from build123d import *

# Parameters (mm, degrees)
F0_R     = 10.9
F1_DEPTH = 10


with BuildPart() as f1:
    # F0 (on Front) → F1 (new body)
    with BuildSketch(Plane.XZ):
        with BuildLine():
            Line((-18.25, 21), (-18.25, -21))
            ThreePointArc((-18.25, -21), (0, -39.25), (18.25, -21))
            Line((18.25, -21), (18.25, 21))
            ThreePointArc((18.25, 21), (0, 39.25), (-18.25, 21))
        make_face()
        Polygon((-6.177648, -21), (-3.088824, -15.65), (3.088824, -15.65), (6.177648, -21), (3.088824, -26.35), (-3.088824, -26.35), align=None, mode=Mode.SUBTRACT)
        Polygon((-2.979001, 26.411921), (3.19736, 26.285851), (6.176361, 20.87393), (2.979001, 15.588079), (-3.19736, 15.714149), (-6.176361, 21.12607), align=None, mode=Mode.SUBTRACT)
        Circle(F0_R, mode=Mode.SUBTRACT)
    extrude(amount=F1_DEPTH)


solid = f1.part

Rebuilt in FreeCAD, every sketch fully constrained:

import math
import FreeCAD as App
import Part
import Sketcher
from FreeCAD import Vector
Q = App.Units.Quantity


def add_polygon(sketch, points):
    """Adds a closed chain of lines whose ends are joined by coincident constraints."""
    first, n = sketch.GeometryCount, len(points)
    for a, b in zip(points, points[1:] + points[:1]):
        sketch.addGeometry(Part.LineSegment(App.Vector(*a, 0), App.Vector(*b, 0)), False)
    for i in range(n):
        sketch.addConstraint(Sketcher.Constraint("Coincident", first + i, 2, first + (i + 1) % n, 1))

doc = App.newDocument("Part")
body = doc.addObject("PartDesign::Body", "Body")

sketch1 = doc.addObject("Sketcher::SketchObject", "Sketch")
body.addObject(sketch1)
sketch1.AttachmentSupport = (doc.XZ_Plane, [""])
sketch1.MapMode = "FlatFace"
sketch1.addGeometry(Part.LineSegment(Vector(-18, 21, 0), Vector(-18, -21, 0)), False)
sketch1.addGeometry(Part.ArcOfCircle(Part.Circle(Vector(0, -21, 0), Vector(0, 0, 1), 18), math.radians(180), math.radians(360)), False)
sketch1.addGeometry(Part.LineSegment(Vector(18, -21, 0), Vector(18, 21, 0)), False)
sketch1.addGeometry(Part.ArcOfCircle(Part.Circle(Vector(0, 21, 0), Vector(0, 0, 1), 18), math.radians(0), math.radians(180)), False)
add_polygon(sketch1, [(-3, -26), (-6, -21), (-3, -16), (3, -16), (6, -21), (3, -26)])
sketch1.addGeometry(Part.Circle(Vector(0, 0, 0), Vector(0, 0, 1), 11), False)
add_polygon(sketch1, [(-6, 21), (-3, 26), (3, 26), (6, 21), (3, 16), (-3, 16)])
sketch1.addConstraint([
    Sketcher.Constraint("Tangent", 0, 2, 1, 1),
    Sketcher.Constraint("Tangent", 1, 2, 2, 1),
    Sketcher.Constraint("Tangent", 2, 2, 3, 1),
    Sketcher.Constraint("Tangent", 3, 2, 0, 1),
    Sketcher.Constraint("Vertical", 0),
    Sketcher.Constraint("Vertical", 2),
    Sketcher.Constraint("Horizontal", 6),
    Sketcher.Constraint("Horizontal", 9),
    Sketcher.Constraint("Coincident", 10, 3, -1, 1),
    Sketcher.Constraint("Symmetric", 1, 3, 3, 3, -1, 1),
    Sketcher.Constraint("Symmetric", 4, 2, 7, 2, -2),
    Sketcher.Constraint("Parallel", 4, 7),
    Sketcher.Constraint("Parallel", 5, 8),
    Sketcher.Constraint("Parallel", 11, 14),
    Sketcher.Constraint("Parallel", 12, 15),
    Sketcher.Constraint("Parallel", 13, 16),
    Sketcher.Constraint("Horizontal", 1, 2, 4, 2),
    Sketcher.Constraint("Vertical", 6, 2, 8, 2),
    Sketcher.Constraint("Vertical", 5, 2, 9, 2),
    Sketcher.Constraint("Equal", 8, 11),
    Sketcher.Constraint("Equal", 11, 12),
    Sketcher.Constraint("Equal", 12, 13),
    Sketcher.Constraint("Equal", 13, 14),
    Sketcher.Constraint("Diameter", 10, 21.8),
    Sketcher.Constraint("DistanceY", 0, 2, 0, 1, 42.0),
    Sketcher.Constraint("Angle", 4, Q("120 deg")),
    Sketcher.Constraint("Radius", 1, 18.25),
    Sketcher.Constraint("DistanceY", 8, 2, 6, 2, 10.7),
    Sketcher.Constraint("DistanceX", 11, 2, -1, 1, 2.979001),
    Sketcher.Constraint("DistanceX", -1, 1, 14, 2, 2.979001),
    Sketcher.Constraint("DistanceX", 12, 2, 13, 2, 2.979001),
    Sketcher.Constraint("DistanceX", 6, 1, 6, 2, 6.177648),
    Sketcher.Constraint("DistanceY", -1, 1, 11, 2, 26.411921),
    Sketcher.Constraint("DistanceX", -1, 1, 12, 2, 3.19736),
])
pad1 = doc.addObject("PartDesign::Pad", "Pad")
body.addObject(pad1)
pad1.Profile = sketch1
pad1.Length = 10

doc.recompute()
